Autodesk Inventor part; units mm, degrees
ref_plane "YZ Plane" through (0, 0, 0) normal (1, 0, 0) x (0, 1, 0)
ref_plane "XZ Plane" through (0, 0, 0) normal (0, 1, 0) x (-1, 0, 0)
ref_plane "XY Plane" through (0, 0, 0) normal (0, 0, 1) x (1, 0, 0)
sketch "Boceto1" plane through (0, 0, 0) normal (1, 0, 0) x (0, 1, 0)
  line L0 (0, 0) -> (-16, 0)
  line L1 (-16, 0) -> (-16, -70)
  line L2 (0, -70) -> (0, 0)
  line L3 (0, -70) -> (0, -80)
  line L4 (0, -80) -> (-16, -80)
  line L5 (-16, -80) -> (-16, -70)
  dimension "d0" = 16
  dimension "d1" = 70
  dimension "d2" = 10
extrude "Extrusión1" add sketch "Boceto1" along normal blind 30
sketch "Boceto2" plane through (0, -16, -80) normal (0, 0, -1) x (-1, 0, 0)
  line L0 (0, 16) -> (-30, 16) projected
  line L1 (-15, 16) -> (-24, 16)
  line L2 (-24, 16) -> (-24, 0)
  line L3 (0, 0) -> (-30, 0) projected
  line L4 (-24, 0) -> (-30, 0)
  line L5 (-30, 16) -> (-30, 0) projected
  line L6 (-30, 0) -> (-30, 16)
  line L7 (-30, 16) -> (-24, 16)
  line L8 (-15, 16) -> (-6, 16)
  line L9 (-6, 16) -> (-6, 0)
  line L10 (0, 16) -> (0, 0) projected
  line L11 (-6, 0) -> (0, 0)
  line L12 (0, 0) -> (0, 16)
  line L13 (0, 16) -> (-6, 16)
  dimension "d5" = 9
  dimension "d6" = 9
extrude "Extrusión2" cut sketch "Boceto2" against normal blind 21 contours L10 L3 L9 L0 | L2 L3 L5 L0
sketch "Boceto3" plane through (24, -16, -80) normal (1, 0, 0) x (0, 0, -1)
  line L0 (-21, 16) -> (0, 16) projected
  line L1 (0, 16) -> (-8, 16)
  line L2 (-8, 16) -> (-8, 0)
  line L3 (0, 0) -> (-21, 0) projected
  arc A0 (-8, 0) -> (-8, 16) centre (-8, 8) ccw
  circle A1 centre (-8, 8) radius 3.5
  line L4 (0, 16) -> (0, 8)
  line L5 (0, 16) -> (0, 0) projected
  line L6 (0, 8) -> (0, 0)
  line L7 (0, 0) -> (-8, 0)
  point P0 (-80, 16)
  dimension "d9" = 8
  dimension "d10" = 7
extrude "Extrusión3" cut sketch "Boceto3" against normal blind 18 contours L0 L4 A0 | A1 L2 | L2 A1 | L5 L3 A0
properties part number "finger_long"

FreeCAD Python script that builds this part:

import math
import FreeCAD as App
import Part
import Sketcher

V = App.Vector
Q = App.Units.Quantity

doc = App.newDocument("Part")
body = doc.addObject("PartDesign::Body", "Body")

sketch1 = body.newObject("Sketcher::SketchObject", "Sketch")
sketch1.AttachmentSupport = (doc.getObject("YZ_Plane"), [""])
sketch1.MapMode = "FlatFace"
sketch1.addGeometry([
    Part.LineSegment(V(0, -80, 0), V(0, 0, 0)),
    Part.LineSegment(V(0, 0, 0), V(-16, 0, 0)),
    Part.LineSegment(V(-16, 0, 0), V(-16, -80, 0)),
    Part.LineSegment(V(-16, -80, 0), V(0, -80, 0)),
], False)
sketch1.addConstraint([
    Sketcher.Constraint("Coincident", 0, 2, 1, 1),
    Sketcher.Constraint("Coincident", 1, 2, 2, 1),
    Sketcher.Constraint("Coincident", 2, 2, 3, 1),
    Sketcher.Constraint("Coincident", 3, 2, 0, 1),
    Sketcher.Constraint("Vertical", 0),
    Sketcher.Constraint("Horizontal", 1),
    Sketcher.Constraint("Vertical", 2),
    Sketcher.Constraint("Horizontal", 3),
    Sketcher.Constraint("Coincident", 0, 2, -1, 1),
    Sketcher.Constraint("DistanceX", 1, 2, 1, 1, Q("16 mm")),
    Sketcher.Constraint("DistanceY", 0, 1, 0, 2, Q("80 mm")),
])
pad1 = body.newObject("PartDesign::Pad", "Pad")
pad1.Profile = sketch1
pad1.Length = 30

sketch2 = body.newObject("Sketcher::SketchObject", "Sketch001")
sketch2.AttachmentSupport = (doc.getObject("XY_Plane"), [""])
sketch2.MapMode = "FlatFace"
sketch2.AttachmentOffset = App.Placement(V(0, 0, -80), App.Rotation())
sketch2.addGeometry([
    Part.LineSegment(V(0, -16, 0), V(0, 0, 0)),
    Part.LineSegment(V(0, 0, 0), V(6, 0, 0)),
    Part.LineSegment(V(6, 0, 0), V(6, -16, 0)),
    Part.LineSegment(V(6, -16, 0), V(0, -16, 0)),
    Part.LineSegment(V(24, -16, 0), V(24, 0, 0)),
    Part.LineSegment(V(24, 0, 0), V(30, 0, 0)),
    Part.LineSegment(V(30, 0, 0), V(30, -16, 0)),
    Part.LineSegment(V(30, -16, 0), V(24, -16, 0)),
], False)
sketch2.addConstraint([
    Sketcher.Constraint("Coincident", 0, 2, 1, 1),
    Sketcher.Constraint("Coincident", 1, 2, 2, 1),
    Sketcher.Constraint("Coincident", 2, 2, 3, 1),
    Sketcher.Constraint("Coincident", 3, 2, 0, 1),
    Sketcher.Constraint("Coincident", 4, 2, 5, 1),
    Sketcher.Constraint("Coincident", 5, 2, 6, 1),
    Sketcher.Constraint("Coincident", 6, 2, 7, 1),
    Sketcher.Constraint("Coincident", 7, 2, 4, 1),
    Sketcher.Constraint("Vertical", 0),
    Sketcher.Constraint("Horizontal", 1),
    Sketcher.Constraint("Vertical", 2),
    Sketcher.Constraint("Horizontal", 3),
    Sketcher.Constraint("Vertical", 4),
    Sketcher.Constraint("Horizontal", 5),
    Sketcher.Constraint("Vertical", 6),
    Sketcher.Constraint("Horizontal", 7),
    Sketcher.Constraint("Coincident", 0, 2, -1, 1),
    Sketcher.Constraint("PointOnObject", 4, 2, -1),
    Sketcher.Constraint("Horizontal", 3, 2, 6, 2),
    Sketcher.Constraint("Equal", 3, 5),
    Sketcher.Constraint("DistanceX", 1, 1, 1, 2, Q("6 mm")),
    Sketcher.Constraint("DistanceY", 0, 1, 0, 2, Q("16 mm")),
    Sketcher.Constraint("DistanceX", -1, 1, 4, 2, Q("24 mm")),
])
pocket1 = body.newObject("PartDesign::Pocket", "Pocket")
pocket1.Profile = sketch2
pocket1.Length = 21
pocket1.Reversed = True

sketch3 = body.newObject("Sketcher::SketchObject", "Sketch002")
sketch3.AttachmentSupport = (doc.getObject("YZ_Plane"), [""])
sketch3.MapMode = "FlatFace"
sketch3.AttachmentOffset = App.Placement(V(0, 0, 24), App.Rotation())
sketch3.addGeometry([
    Part.LineSegment(V(0, -80, 0), V(0, -72, 0)),
    Part.ArcOfCircle(Part.Circle(V(-8, -72, 0), V(0, 0, 1), 8), math.radians(-90), math.radians(0)),
    Part.LineSegment(V(-8, -80, 0), V(0, -80, 0)),
    Part.Circle(V(-8, -72, 0), V(0, 0, 1), 3.5),
    Part.LineSegment(V(-16, -80, 0), V(-8, -80, 0)),
    Part.ArcOfCircle(Part.Circle(V(-8, -72, 0), V(0, 0, 1), 8), math.radians(180), math.radians(270)),
    Part.LineSegment(V(-16, -72, 0), V(-16, -80, 0)),
], False)
sketch3.addConstraint([
    Sketcher.Constraint("Tangent", 0, 2, 1, 2),
    Sketcher.Constraint("Tangent", 1, 1, 2, 1),
    Sketcher.Constraint("Coincident", 2, 2, 0, 1),
    Sketcher.Constraint("Tangent", 4, 2, 5, 2),
    Sketcher.Constraint("Tangent", 5, 1, 6, 1),
    Sketcher.Constraint("Coincident", 6, 2, 4, 1),
    Sketcher.Constraint("Vertical", 0),
    Sketcher.Constraint("Horizontal", 2),
    Sketcher.Constraint("Horizontal", 4),
    Sketcher.Constraint("Vertical", 6),
    Sketcher.Constraint("Coincident", 3, 3, 1, 3),
    Sketcher.Constraint("Coincident", 5, 3, 1, 3),
    Sketcher.Constraint("Equal", 1, 5),
    Sketcher.Constraint("PointOnObject", 0, 2, -2),
    Sketcher.Constraint("Diameter", 3, Q("7 mm")),
    Sketcher.Constraint("Radius", 1, Q("8 mm")),
    Sketcher.Constraint("DistanceY", 1, 3, -1, 1, Q("72 mm")),
])
pocket2 = body.newObject("PartDesign::Pocket", "Pocket001")
pocket2.Profile = sketch3
pocket2.Length = 18

doc.recompute()
